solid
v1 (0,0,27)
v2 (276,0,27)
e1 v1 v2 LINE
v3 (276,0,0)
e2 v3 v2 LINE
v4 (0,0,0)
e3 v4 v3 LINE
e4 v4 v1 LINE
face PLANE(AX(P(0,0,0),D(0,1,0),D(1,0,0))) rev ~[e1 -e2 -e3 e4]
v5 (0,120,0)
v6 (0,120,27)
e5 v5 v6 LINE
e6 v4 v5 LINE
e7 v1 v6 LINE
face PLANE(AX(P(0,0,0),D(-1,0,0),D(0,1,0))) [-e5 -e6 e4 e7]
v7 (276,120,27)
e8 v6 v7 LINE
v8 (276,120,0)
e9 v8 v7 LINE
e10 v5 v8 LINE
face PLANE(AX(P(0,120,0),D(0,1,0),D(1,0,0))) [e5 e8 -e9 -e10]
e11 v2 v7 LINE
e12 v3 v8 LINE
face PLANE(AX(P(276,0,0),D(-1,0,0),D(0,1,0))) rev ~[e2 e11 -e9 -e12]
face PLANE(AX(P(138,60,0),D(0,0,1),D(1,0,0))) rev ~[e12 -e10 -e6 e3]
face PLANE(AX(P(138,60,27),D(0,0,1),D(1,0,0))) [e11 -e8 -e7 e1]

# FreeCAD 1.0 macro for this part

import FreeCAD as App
import Part
import Sketcher

V = App.Vector


def add_polygon(sketch, points):
    """Adds a closed chain of lines whose ends are joined by coincident constraints."""
    first, n = sketch.GeometryCount, len(points)
    for a, b in zip(points, points[1:] + points[:1]):
        sketch.addGeometry(Part.LineSegment(App.Vector(*a, 0), App.Vector(*b, 0)), False)
    for i in range(n):
        sketch.addConstraint(Sketcher.Constraint("Coincident", first + i, 2, first + (i + 1) % n, 1))

doc = App.newDocument("Part")
body = doc.addObject("PartDesign::Body", "Body")

# Sketch on XY plane
sketch1 = doc.addObject("Sketcher::SketchObject", "Sketch")
body.addObject(sketch1)
sketch1.AttachmentSupport = (doc.XY_Plane, [""])
sketch1.MapMode = "FlatFace"
add_polygon(sketch1, [(0, 120), (0, 0), (276, 0), (276, 120)])  # lines 0-3
sketch1.addConstraint([
    Sketcher.Constraint("Vertical", 0),
    Sketcher.Constraint("Horizontal", 1),
    Sketcher.Constraint("Vertical", 2),
    Sketcher.Constraint("Horizontal", 3),
    Sketcher.Constraint("Coincident", 0, 2, -1, 1),
    Sketcher.Constraint("DistanceX", 1, 1, 1, 2, 276.0),
    Sketcher.Constraint("DistanceY", 0, 2, 0, 1, 120.0),
])
pad1 = doc.addObject("PartDesign::Pad", "Pad")
body.addObject(pad1)
pad1.Profile = sketch1
pad1.Length = 27

doc.recompute()
